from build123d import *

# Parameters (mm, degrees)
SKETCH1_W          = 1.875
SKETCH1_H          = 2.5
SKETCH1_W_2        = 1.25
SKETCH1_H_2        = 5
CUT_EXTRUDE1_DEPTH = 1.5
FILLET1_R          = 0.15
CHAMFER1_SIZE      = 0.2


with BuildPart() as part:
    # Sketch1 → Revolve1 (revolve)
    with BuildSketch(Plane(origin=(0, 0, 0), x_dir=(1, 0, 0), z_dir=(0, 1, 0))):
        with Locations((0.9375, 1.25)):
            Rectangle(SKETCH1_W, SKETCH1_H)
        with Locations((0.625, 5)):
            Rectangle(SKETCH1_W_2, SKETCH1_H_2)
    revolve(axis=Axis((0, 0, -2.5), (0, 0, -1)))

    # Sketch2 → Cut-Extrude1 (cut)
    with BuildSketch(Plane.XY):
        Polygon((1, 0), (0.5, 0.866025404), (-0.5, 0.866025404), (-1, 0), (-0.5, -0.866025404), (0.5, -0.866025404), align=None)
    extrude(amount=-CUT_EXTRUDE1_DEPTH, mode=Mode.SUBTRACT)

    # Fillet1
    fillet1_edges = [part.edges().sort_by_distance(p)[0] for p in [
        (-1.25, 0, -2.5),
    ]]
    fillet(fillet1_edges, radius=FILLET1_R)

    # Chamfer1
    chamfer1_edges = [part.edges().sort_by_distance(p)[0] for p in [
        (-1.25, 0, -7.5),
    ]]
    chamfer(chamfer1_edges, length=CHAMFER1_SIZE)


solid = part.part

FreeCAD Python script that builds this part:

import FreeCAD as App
import Part
import Sketcher
from FreeCAD import Vector
Q = App.Units.Quantity


def edges_at(feature, points):
    """Names of the edges that pass closest to the given points."""
    edges = feature.Shape.Edges
    near = lambda p: min(range(len(edges)), key=lambda i: edges[i].distToShape(Part.Vertex(*p))[0])
    return sorted({f"Edge{near(p) + 1}" for p in points})


def add_polygon(sketch, points):
    """Adds a closed chain of lines whose ends are joined by coincident constraints."""
    first, n = sketch.GeometryCount, len(points)
    for a, b in zip(points, points[1:] + points[:1]):
        sketch.addGeometry(Part.LineSegment(App.Vector(*a, 0), App.Vector(*b, 0)), False)
    for i in range(n):
        sketch.addConstraint(Sketcher.Constraint("Coincident", first + i, 2, first + (i + 1) % n, 1))

doc = App.newDocument("Part")
body = doc.addObject("PartDesign::Body", "Body")

# Sketch on XZ plane
sketch1 = doc.addObject("Sketcher::SketchObject", "Sketch")
body.addObject(sketch1)
sketch1.AttachmentSupport = (doc.XZ_Plane, [""])
sketch1.MapMode = "FlatFace"
add_polygon(sketch1, [(0, 0), (1.9, 0), (1.9, -2.5), (1.2, -2.5), (1.2, -7.5), (0, -7.5)])  # lines 0-5
sketch1.addConstraint([
    Sketcher.Constraint("Horizontal", 0),
    Sketcher.Constraint("Vertical", 1),
    Sketcher.Constraint("Horizontal", 2),
    Sketcher.Constraint("Vertical", 3),
    Sketcher.Constraint("Horizontal", 4),
    Sketcher.Constraint("Vertical", 5),
    Sketcher.Constraint("Coincident", 5, 2, -1, 1),
    Sketcher.Constraint("DistanceY", 3, 2, 3, 1, 5.0),
    Sketcher.Constraint("DistanceY", 1, 2, 1, 1, 2.5),
    Sketcher.Constraint("DistanceX", 4, 2, 4, 1, 1.25),
    Sketcher.Constraint("DistanceX", 0, 1, 0, 2, 1.875),
])
revolution = doc.addObject("PartDesign::Revolution", "Revolution")
body.addObject(revolution)
revolution.Profile = sketch1
revolution.ReferenceAxis = (sketch1, ["V_Axis"])
revolution.Angle = 360

# Sketch on XY plane
sketch2 = doc.addObject("Sketcher::SketchObject", "Sketch001")
body.addObject(sketch2)
sketch2.AttachmentSupport = (doc.XY_Plane, [""])
sketch2.MapMode = "FlatFace"
add_polygon(sketch2, [(1, 0), (0.5, 0.9), (-0.5, 0.9), (-1, 0), (-0.5, -0.9), (0.5, -0.9)])  # lines 0-5
sketch2.addConstraint([
    Sketcher.Constraint("Horizontal", 1),
    Sketcher.Constraint("Horizontal", 4),
    Sketcher.Constraint("Symmetric", 0, 2, 3, 2, -1, 1),
    Sketcher.Constraint("Symmetric", 2, 2, 5, 2, -1, 1),
    Sketcher.Constraint("PointOnObject", 2, 2, -1),
    Sketcher.Constraint("Parallel", 2, 5),
    Sketcher.Constraint("Vertical", 1, 2, 3, 2),
    Sketcher.Constraint("DistanceX", 1, 2, 1, 1, 1.0),
    Sketcher.Constraint("Angle", 0, Q("120 deg")),
    Sketcher.Constraint("Distance", 0, 1.0),
])
pocket1 = doc.addObject("PartDesign::Pocket", "Pocket")
body.addObject(pocket1)
pocket1.Profile = sketch2
pocket1.Length = 1.5
doc.recompute()

fillet = doc.addObject("PartDesign::Fillet", "Fillet")
body.addObject(fillet)
fillet.Base = (pocket1, edges_at(pocket1, [(-1.25, 0, -2.5)]))
fillet.Radius = 0.15
doc.recompute()

chamfer = doc.addObject("PartDesign::Chamfer", "Chamfer")
body.addObject(chamfer)
chamfer.Base = (fillet, edges_at(fillet, [(-1.25, 0, -7.5)]))
chamfer.Size = 0.2

doc.recompute()
